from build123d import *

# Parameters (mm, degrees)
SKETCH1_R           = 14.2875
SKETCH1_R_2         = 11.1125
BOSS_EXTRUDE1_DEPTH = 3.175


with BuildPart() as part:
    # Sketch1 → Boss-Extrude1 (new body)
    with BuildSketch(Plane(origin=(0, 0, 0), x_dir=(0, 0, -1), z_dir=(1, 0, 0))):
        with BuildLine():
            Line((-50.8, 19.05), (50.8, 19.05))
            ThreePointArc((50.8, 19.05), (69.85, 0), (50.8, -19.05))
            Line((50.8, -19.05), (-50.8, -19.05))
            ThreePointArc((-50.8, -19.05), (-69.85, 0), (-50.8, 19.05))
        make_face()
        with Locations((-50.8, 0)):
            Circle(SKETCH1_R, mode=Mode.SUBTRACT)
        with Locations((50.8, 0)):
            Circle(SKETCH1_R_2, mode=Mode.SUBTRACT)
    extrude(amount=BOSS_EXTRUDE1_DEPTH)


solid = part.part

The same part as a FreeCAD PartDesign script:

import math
import FreeCAD as App
import Part
import Sketcher
from FreeCAD import Vector
Q = App.Units.Quantity

doc = App.newDocument("Part")
body = doc.addObject("PartDesign::Body", "Body")

# Sketch on YZ plane
sketch1 = doc.addObject("Sketcher::SketchObject", "Sketch")
body.addObject(sketch1)
sketch1.AttachmentSupport = (doc.YZ_Plane, [""])
sketch1.MapMode = "FlatFace"
sketch1.addGeometry([
    Part.LineSegment(Vector(19.05, -50.8, 0), Vector(19.05, 50.8, 0)),  # 0
    Part.ArcOfCircle(Part.Circle(Vector(0, 50.8, 0), Vector(0, 0, 1), 19.05), math.radians(0), math.radians(180)),  # 1
    Part.LineSegment(Vector(-19.05, 50.8, 0), Vector(-19.05, -50.8, 0)),  # 2
    Part.ArcOfCircle(Part.Circle(Vector(0, -50.8, 0), Vector(0, 0, 1), 19.05), math.radians(180), math.radians(360)),  # 3
    Part.Circle(Vector(0, -50.8, 0), Vector(0, 0, 1), 11.1125),  # 4
    Part.Circle(Vector(0, 50.8, 0), Vector(0, 0, 1), 14.2875),  # 5
], False)
sketch1.addConstraint([
    Sketcher.Constraint("Tangent", 0, 2, 1, 1),
    Sketcher.Constraint("Tangent", 1, 2, 2, 1),
    Sketcher.Constraint("Tangent", 2, 2, 3, 1),
    Sketcher.Constraint("Tangent", 3, 2, 0, 1),
    Sketcher.Constraint("Vertical", 0),
    Sketcher.Constraint("Vertical", 2),
    Sketcher.Constraint("Coincident", 4, 3, 3, 3),
    Sketcher.Constraint("Coincident", 5, 3, 1, 3),
    Sketcher.Constraint("Symmetric", 1, 3, 3, 3, -1, 1),
    Sketcher.Constraint("DistanceY", 0, 1, 0, 2, Q("4 in")),
    Sketcher.Constraint("Radius", 1, Q("0.75 in")),
    Sketcher.Constraint("Diameter", 4, Q("0.875 in")),
    Sketcher.Constraint("Diameter", 5, Q("1.125 in")),
])
pad1 = doc.addObject("PartDesign::Pad", "Pad")
body.addObject(pad1)
pad1.Profile = sketch1
pad1.Length = Q("0.125 in")

doc.recompute()
